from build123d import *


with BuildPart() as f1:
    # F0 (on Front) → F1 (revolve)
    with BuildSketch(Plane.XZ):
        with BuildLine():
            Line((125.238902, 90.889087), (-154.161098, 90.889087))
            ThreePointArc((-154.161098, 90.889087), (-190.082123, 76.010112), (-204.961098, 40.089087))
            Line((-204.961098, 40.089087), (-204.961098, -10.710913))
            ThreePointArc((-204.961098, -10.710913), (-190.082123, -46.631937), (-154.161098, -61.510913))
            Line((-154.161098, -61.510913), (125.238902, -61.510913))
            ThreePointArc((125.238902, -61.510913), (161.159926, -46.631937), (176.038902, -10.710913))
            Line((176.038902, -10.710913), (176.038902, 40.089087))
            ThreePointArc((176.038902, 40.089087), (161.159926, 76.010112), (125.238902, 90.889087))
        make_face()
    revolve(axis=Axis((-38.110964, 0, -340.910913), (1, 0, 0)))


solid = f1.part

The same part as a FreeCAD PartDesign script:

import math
import FreeCAD as App
import Part
import Sketcher
Q = App.Units.Quantity

doc = App.newDocument("Part")
body = doc.addObject("PartDesign::Body", "Body")

sketch1 = doc.addObject("Sketcher::SketchObject", "Sketch")
body.addObject(sketch1)
sketch1.AttachmentSupport = (doc.XZ_Plane, [""])
sketch1.MapMode = "FlatFace"
sketch1.addGeometry(Part.LineSegment(App.Vector(125, 91, 0), App.Vector(-154, 91, 0)), False)
sketch1.addGeometry(Part.ArcOfCircle(Part.Circle(App.Vector(-154, 40, 0), App.Vector(0, 0, 1), 51), math.radians(90), math.radians(180)), False)
sketch1.addGeometry(Part.LineSegment(App.Vector(-205, 40, 0), App.Vector(-205, -11, 0)), False)
sketch1.addGeometry(Part.ArcOfCircle(Part.Circle(App.Vector(-154, -11, 0), App.Vector(0, 0, 1), 51), math.radians(180), math.radians(270)), False)
sketch1.addGeometry(Part.LineSegment(App.Vector(-154, -62, 0), App.Vector(125, -62, 0)), False)
sketch1.addGeometry(Part.ArcOfCircle(Part.Circle(App.Vector(125, -11, 0), App.Vector(0, 0, 1), 51), math.radians(-90), math.radians(0)), False)
sketch1.addGeometry(Part.LineSegment(App.Vector(176, -11, 0), App.Vector(176, 40, 0)), False)
sketch1.addGeometry(Part.ArcOfCircle(Part.Circle(App.Vector(125, 40, 0), App.Vector(0, 0, 1), 51), math.radians(0), math.radians(90)), False)
sketch1.addGeometry(Part.LineSegment(App.Vector(-205, -341, 0), App.Vector(176, -341, 0)), True)
sketch1.addConstraint(Sketcher.Constraint("Tangent", 0, 2, 1, 1))
sketch1.addConstraint(Sketcher.Constraint("Tangent", 1, 2, 2, 1))
sketch1.addConstraint(Sketcher.Constraint("Tangent", 2, 2, 3, 1))
sketch1.addConstraint(Sketcher.Constraint("Tangent", 3, 2, 4, 1))
sketch1.addConstraint(Sketcher.Constraint("Tangent", 4, 2, 5, 1))
sketch1.addConstraint(Sketcher.Constraint("Tangent", 5, 2, 6, 1))
sketch1.addConstraint(Sketcher.Constraint("Tangent", 6, 2, 7, 1))
sketch1.addConstraint(Sketcher.Constraint("Tangent", 7, 2, 0, 1))
sketch1.addConstraint(Sketcher.Constraint("Horizontal", 0))
sketch1.addConstraint(Sketcher.Constraint("Vertical", 2))
sketch1.addConstraint(Sketcher.Constraint("Horizontal", 4))
sketch1.addConstraint(Sketcher.Constraint("Vertical", 6))
sketch1.addConstraint(Sketcher.Constraint("Horizontal", 8))
sketch1.addConstraint(Sketcher.Constraint("Equal", 1, 3))
sketch1.addConstraint(Sketcher.Constraint("Equal", 3, 5))
sketch1.addConstraint(Sketcher.Constraint("Equal", 5, 7))
sketch1.addConstraint(Sketcher.Constraint("Vertical", 2, 2, 8, 1))
sketch1.addConstraint(Sketcher.Constraint("Vertical", 6, 2, 8, 2))
sketch1.addConstraint(Sketcher.Constraint("Radius", 1, Q("1.9999999 in")))
sketch1.addConstraint(Sketcher.Constraint("DistanceX", 0, 2, 0, 1, Q("11 in")))
sketch1.addConstraint(Sketcher.Constraint("DistanceY", 2, 2, 2, 1, Q("2 in")))
sketch1.addConstraint(Sketcher.Constraint("DistanceY", 8, 1, 3, 2, Q("11 in")))
sketch1.addConstraint(Sketcher.Constraint("DistanceX", 1, 3, -1, 1, 154.1611))
sketch1.addConstraint(Sketcher.Constraint("DistanceY", -1, 1, 1, 3, 40.089089))
revolution = doc.addObject("PartDesign::Revolution", "Revolution")
body.addObject(revolution)
revolution.Profile = sketch1
revolution.ReferenceAxis = (sketch1, ["Axis0"])
revolution.Angle = 360

doc.recompute()
